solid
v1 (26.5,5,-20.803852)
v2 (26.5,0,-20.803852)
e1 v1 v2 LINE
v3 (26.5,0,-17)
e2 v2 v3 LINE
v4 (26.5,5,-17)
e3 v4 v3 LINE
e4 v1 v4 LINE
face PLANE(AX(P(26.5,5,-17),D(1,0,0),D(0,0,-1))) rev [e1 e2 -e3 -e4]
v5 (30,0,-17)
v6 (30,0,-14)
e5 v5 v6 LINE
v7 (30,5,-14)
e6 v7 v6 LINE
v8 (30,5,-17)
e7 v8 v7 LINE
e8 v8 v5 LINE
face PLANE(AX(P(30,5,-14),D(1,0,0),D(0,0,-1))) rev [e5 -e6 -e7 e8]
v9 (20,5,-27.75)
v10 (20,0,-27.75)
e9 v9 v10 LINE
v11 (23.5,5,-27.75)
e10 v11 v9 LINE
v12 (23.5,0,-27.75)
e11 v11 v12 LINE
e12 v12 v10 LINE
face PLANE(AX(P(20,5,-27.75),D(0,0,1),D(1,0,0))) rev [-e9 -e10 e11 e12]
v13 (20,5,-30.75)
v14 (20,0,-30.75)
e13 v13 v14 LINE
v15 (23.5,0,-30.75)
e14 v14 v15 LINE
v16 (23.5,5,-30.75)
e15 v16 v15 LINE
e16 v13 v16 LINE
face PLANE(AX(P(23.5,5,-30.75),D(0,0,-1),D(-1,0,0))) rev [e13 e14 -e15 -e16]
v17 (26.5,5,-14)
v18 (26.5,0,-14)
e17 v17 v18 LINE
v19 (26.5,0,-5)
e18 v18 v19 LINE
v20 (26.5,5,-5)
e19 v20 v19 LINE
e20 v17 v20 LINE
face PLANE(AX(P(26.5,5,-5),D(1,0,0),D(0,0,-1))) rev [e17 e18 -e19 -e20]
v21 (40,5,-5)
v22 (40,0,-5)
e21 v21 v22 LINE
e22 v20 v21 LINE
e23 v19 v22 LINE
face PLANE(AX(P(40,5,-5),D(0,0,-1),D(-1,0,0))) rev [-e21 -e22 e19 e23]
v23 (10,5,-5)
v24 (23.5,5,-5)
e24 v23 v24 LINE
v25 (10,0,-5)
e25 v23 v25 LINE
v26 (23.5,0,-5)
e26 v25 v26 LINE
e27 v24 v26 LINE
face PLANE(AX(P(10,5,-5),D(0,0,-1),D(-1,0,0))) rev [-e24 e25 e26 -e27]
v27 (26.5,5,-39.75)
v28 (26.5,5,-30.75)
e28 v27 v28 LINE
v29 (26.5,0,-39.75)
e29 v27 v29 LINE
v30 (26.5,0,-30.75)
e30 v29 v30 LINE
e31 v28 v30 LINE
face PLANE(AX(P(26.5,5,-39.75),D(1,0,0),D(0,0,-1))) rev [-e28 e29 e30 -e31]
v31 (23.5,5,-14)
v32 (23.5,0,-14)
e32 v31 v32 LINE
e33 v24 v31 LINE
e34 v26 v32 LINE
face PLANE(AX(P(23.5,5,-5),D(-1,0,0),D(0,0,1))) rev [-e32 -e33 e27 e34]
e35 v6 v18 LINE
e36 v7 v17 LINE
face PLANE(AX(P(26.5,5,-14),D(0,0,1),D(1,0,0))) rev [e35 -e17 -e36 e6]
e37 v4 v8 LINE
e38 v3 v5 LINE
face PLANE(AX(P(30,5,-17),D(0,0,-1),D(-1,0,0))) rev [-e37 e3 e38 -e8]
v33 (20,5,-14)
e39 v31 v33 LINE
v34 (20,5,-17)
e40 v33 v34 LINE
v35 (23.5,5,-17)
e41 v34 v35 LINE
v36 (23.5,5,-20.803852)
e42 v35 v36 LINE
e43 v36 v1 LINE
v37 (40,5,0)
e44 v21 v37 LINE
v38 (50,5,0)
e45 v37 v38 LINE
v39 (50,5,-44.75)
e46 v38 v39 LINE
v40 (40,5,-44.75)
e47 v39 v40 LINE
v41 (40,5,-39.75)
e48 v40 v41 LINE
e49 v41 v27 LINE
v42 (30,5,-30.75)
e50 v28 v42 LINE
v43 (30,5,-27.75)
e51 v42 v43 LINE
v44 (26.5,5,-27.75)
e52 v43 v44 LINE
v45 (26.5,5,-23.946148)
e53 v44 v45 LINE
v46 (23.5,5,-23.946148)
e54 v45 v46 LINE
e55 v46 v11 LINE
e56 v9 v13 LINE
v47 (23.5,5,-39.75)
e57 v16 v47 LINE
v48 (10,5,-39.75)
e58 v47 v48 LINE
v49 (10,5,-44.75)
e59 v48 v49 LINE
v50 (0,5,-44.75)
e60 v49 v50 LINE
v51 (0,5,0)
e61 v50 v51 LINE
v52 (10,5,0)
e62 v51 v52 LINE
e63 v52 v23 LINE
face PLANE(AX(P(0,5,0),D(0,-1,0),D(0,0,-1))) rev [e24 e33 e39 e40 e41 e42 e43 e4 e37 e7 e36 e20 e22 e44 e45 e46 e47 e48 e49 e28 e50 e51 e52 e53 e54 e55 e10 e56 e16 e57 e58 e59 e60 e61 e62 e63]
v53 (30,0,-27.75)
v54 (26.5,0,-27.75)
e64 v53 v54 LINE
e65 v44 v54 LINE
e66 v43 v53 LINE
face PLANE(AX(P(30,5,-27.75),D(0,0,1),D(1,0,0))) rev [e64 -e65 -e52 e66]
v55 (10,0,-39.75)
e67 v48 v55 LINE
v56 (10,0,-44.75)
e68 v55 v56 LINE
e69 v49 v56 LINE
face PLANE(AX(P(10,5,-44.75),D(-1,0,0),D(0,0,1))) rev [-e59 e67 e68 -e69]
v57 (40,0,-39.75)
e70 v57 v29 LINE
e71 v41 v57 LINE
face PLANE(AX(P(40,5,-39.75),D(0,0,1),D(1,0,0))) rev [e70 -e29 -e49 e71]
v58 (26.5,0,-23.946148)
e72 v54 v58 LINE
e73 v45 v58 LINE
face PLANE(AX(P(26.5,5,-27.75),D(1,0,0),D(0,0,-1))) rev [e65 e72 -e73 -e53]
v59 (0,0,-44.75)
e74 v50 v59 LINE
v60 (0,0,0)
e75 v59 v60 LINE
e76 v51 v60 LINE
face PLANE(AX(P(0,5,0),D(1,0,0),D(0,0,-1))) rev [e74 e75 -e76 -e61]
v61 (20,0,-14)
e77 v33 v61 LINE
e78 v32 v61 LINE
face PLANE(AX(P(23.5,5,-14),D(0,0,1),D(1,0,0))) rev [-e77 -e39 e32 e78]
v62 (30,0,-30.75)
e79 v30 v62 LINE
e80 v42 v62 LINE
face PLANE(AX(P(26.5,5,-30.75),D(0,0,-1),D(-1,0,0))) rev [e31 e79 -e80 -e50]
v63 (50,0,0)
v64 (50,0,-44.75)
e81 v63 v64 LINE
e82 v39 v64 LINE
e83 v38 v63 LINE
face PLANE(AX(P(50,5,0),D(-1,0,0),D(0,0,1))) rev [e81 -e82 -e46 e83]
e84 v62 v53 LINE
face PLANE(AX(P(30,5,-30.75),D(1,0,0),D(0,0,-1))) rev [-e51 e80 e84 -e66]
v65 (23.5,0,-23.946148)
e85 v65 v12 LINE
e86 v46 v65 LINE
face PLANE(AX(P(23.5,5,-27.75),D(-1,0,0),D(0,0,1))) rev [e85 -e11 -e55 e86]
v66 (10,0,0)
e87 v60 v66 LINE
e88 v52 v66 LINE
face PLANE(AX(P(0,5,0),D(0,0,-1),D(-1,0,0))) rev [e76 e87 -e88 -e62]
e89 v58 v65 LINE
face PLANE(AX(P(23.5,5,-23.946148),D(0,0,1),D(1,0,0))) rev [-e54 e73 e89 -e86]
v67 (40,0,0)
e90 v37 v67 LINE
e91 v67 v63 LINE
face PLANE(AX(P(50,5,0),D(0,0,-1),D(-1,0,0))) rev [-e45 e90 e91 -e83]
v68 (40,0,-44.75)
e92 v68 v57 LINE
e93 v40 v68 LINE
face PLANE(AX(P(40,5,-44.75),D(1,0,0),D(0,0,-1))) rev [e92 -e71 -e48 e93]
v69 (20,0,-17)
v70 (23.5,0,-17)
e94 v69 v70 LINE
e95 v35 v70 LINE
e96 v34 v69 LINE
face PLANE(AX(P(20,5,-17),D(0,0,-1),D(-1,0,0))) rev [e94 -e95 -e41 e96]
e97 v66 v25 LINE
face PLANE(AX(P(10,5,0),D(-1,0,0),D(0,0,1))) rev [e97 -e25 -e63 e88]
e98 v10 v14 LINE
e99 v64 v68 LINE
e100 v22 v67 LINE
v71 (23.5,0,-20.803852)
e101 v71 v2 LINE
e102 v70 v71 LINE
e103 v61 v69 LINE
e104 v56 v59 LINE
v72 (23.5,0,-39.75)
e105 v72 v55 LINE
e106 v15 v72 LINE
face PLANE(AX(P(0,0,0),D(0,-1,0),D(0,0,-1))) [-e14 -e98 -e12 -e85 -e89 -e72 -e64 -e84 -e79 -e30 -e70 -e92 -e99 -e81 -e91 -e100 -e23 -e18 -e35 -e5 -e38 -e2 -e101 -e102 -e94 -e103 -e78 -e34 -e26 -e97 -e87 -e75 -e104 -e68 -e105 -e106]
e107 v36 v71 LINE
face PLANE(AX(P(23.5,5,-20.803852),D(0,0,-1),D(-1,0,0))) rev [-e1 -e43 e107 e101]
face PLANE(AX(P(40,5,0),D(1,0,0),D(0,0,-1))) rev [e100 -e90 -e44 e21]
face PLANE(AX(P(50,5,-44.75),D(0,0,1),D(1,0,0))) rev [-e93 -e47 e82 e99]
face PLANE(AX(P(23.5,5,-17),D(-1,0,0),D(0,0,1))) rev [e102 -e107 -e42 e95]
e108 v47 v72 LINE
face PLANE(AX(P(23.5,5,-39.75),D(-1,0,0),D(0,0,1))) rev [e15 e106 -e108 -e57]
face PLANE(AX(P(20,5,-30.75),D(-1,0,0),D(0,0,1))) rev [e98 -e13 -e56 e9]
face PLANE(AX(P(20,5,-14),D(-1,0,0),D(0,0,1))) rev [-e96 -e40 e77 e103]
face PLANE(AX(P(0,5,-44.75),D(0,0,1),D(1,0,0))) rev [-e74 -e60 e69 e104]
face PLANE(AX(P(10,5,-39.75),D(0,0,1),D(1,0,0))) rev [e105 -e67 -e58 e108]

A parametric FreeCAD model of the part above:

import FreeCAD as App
import Part
import Sketcher
from FreeCAD import Vector
Q = App.Units.Quantity


def add_polygon(sketch, points):
    """Adds a closed chain of lines whose ends are joined by coincident constraints."""
    first, n = sketch.GeometryCount, len(points)
    for a, b in zip(points, points[1:] + points[:1]):
        sketch.addGeometry(Part.LineSegment(App.Vector(*a, 0), App.Vector(*b, 0)), False)
    for i in range(n):
        sketch.addConstraint(Sketcher.Constraint("Coincident", first + i, 2, first + (i + 1) % n, 1))

doc = App.newDocument("Part")
body = doc.addObject("PartDesign::Body", "Body")

sketch1 = body.newObject("Sketcher::SketchObject", "Sketch")
sketch1.AttachmentSupport = (doc.getObject("XZ_Plane"), [""])
sketch1.MapMode = "FlatFace"
add_polygon(sketch1, [(0, 0), (10, 0), (10, -5), (23.5, -5), (23.5, -14), (20, -14), (20, -17), (23.5, -17), (23.5, -20.8), (26.5, -20.8), (26.5, -17), (30, -17), (30, -14), (26.5, -14), (26.5, -5), (40, -5), (40, 0), (50, 0), (50, -44.8), (40, -44.8), (40, -39.8), (26.5, -39.8), (26.5, -30.8), (30, -30.8), (30, -27.8), (26.5, -27.8), (26.5, -23.9), (23.5, -23.9), (23.5, -27.8), (20, -27.8), (20, -30.8), (23.5, -30.8), (23.5, -39.8), (10, -39.8), (10, -44.8), (0, -44.8)])
sketch1.addConstraint(Sketcher.Constraint("Horizontal", 0))
sketch1.addConstraint(Sketcher.Constraint("Vertical", 1))
sketch1.addConstraint(Sketcher.Constraint("Horizontal", 2))
sketch1.addConstraint(Sketcher.Constraint("Vertical", 3))
sketch1.addConstraint(Sketcher.Constraint("Horizontal", 4))
sketch1.addConstraint(Sketcher.Constraint("Vertical", 5))
sketch1.addConstraint(Sketcher.Constraint("Horizontal", 6))
sketch1.addConstraint(Sketcher.Constraint("Vertical", 7))
sketch1.addConstraint(Sketcher.Constraint("Horizontal", 8))
sketch1.addConstraint(Sketcher.Constraint("Vertical", 9))
sketch1.addConstraint(Sketcher.Constraint("Horizontal", 10))
sketch1.addConstraint(Sketcher.Constraint("Vertical", 11))
sketch1.addConstraint(Sketcher.Constraint("Horizontal", 12))
sketch1.addConstraint(Sketcher.Constraint("Vertical", 13))
sketch1.addConstraint(Sketcher.Constraint("Horizontal", 14))
sketch1.addConstraint(Sketcher.Constraint("Vertical", 15))
sketch1.addConstraint(Sketcher.Constraint("Horizontal", 16))
sketch1.addConstraint(Sketcher.Constraint("Vertical", 17))
sketch1.addConstraint(Sketcher.Constraint("Horizontal", 18))
sketch1.addConstraint(Sketcher.Constraint("Vertical", 19))
sketch1.addConstraint(Sketcher.Constraint("Horizontal", 20))
sketch1.addConstraint(Sketcher.Constraint("Vertical", 21))
sketch1.addConstraint(Sketcher.Constraint("Horizontal", 22))
sketch1.addConstraint(Sketcher.Constraint("Vertical", 23))
sketch1.addConstraint(Sketcher.Constraint("Horizontal", 24))
sketch1.addConstraint(Sketcher.Constraint("Vertical", 25))
sketch1.addConstraint(Sketcher.Constraint("Horizontal", 26))
sketch1.addConstraint(Sketcher.Constraint("Vertical", 27))
sketch1.addConstraint(Sketcher.Constraint("Horizontal", 28))
sketch1.addConstraint(Sketcher.Constraint("Vertical", 29))
sketch1.addConstraint(Sketcher.Constraint("Horizontal", 30))
sketch1.addConstraint(Sketcher.Constraint("Vertical", 31))
sketch1.addConstraint(Sketcher.Constraint("Horizontal", 32))
sketch1.addConstraint(Sketcher.Constraint("Vertical", 33))
sketch1.addConstraint(Sketcher.Constraint("Horizontal", 34))
sketch1.addConstraint(Sketcher.Constraint("Vertical", 35))
sketch1.addConstraint(Sketcher.Constraint("Coincident", 35, 2, -1, 1))
sketch1.addConstraint(Sketcher.Constraint("PointOnObject", 15, 2, -1))
sketch1.addConstraint(Sketcher.Constraint("Horizontal", 6, 2, 9, 2))
sketch1.addConstraint(Sketcher.Constraint("Horizontal", 4, 2, 11, 2))
sketch1.addConstraint(Sketcher.Constraint("Horizontal", 2, 2, 13, 2))
sketch1.addConstraint(Sketcher.Constraint("Horizontal", 24, 2, 27, 2))
sketch1.addConstraint(Sketcher.Constraint("Horizontal", 22, 2, 29, 2))
sketch1.addConstraint(Sketcher.Constraint("Horizontal", 20, 2, 31, 2))
sketch1.addConstraint(Sketcher.Constraint("Horizontal", 18, 2, 33, 2))
sketch1.addConstraint(Sketcher.Constraint("Vertical", 3, 2, 6, 2))
sketch1.addConstraint(Sketcher.Constraint("Vertical", 9, 2, 12, 2))
sketch1.addConstraint(Sketcher.Constraint("Vertical", 15, 2, 18, 2))
sketch1.addConstraint(Sketcher.Constraint("Vertical", 13, 2, 20, 2))
sketch1.addConstraint(Sketcher.Constraint("Vertical", 11, 2, 22, 2))
sketch1.addConstraint(Sketcher.Constraint("Vertical", 21, 2, 24, 2))
sketch1.addConstraint(Sketcher.Constraint("Vertical", 7, 2, 26, 2))
sketch1.addConstraint(Sketcher.Constraint("Vertical", 5, 2, 28, 2))
sketch1.addConstraint(Sketcher.Constraint("Vertical", 27, 2, 30, 2))
sketch1.addConstraint(Sketcher.Constraint("Vertical", 1, 2, 32, 2))
sketch1.addConstraint(Sketcher.Constraint("Equal", 6, 10))
sketch1.addConstraint(Sketcher.Constraint("Equal", 2, 14))
sketch1.addConstraint(Sketcher.Constraint("Equal", 0, 16))
sketch1.addConstraint(Sketcher.Constraint("Equal", 26, 5))
sketch1.addConstraint(Sketcher.Constraint("Equal", 15, 19))
sketch1.addConstraint(Sketcher.Constraint("Equal", 13, 21))
sketch1.addConstraint(Sketcher.Constraint("Equal", 11, 23))
sketch1.addConstraint(Sketcher.Constraint("Equal", 9, 25))
sketch1.addConstraint(Sketcher.Constraint("DistanceX", 0, 1, 0, 2, Q("10 mm")))
sketch1.addConstraint(Sketcher.Constraint("DistanceX", 8, 1, 8, 2, Q("3 mm")))
sketch1.addConstraint(Sketcher.Constraint("DistanceY", 1, 2, 1, 1, Q("5 mm")))
sketch1.addConstraint(Sketcher.Constraint("DistanceY", 3, 2, 3, 1, Q("9 mm")))
sketch1.addConstraint(Sketcher.Constraint("DistanceX", 2, 1, 2, 2, Q("13.5 mm")))
sketch1.addConstraint(Sketcher.Constraint("DistanceX", 4, 2, 4, 1, Q("3.5 mm")))
sketch1.addConstraint(Sketcher.Constraint("DistanceY", 17, 2, 17, 1, Q("44.75 mm")))
sketch1.addConstraint(Sketcher.Constraint("DistanceY", 7, 2, 7, 1, Q("3.803853 mm")))
pad1 = body.newObject("PartDesign::Pad", "Pad")
pad1.Profile = sketch1
pad1.Length = 5
pad1.Reversed = True

doc.recompute()
